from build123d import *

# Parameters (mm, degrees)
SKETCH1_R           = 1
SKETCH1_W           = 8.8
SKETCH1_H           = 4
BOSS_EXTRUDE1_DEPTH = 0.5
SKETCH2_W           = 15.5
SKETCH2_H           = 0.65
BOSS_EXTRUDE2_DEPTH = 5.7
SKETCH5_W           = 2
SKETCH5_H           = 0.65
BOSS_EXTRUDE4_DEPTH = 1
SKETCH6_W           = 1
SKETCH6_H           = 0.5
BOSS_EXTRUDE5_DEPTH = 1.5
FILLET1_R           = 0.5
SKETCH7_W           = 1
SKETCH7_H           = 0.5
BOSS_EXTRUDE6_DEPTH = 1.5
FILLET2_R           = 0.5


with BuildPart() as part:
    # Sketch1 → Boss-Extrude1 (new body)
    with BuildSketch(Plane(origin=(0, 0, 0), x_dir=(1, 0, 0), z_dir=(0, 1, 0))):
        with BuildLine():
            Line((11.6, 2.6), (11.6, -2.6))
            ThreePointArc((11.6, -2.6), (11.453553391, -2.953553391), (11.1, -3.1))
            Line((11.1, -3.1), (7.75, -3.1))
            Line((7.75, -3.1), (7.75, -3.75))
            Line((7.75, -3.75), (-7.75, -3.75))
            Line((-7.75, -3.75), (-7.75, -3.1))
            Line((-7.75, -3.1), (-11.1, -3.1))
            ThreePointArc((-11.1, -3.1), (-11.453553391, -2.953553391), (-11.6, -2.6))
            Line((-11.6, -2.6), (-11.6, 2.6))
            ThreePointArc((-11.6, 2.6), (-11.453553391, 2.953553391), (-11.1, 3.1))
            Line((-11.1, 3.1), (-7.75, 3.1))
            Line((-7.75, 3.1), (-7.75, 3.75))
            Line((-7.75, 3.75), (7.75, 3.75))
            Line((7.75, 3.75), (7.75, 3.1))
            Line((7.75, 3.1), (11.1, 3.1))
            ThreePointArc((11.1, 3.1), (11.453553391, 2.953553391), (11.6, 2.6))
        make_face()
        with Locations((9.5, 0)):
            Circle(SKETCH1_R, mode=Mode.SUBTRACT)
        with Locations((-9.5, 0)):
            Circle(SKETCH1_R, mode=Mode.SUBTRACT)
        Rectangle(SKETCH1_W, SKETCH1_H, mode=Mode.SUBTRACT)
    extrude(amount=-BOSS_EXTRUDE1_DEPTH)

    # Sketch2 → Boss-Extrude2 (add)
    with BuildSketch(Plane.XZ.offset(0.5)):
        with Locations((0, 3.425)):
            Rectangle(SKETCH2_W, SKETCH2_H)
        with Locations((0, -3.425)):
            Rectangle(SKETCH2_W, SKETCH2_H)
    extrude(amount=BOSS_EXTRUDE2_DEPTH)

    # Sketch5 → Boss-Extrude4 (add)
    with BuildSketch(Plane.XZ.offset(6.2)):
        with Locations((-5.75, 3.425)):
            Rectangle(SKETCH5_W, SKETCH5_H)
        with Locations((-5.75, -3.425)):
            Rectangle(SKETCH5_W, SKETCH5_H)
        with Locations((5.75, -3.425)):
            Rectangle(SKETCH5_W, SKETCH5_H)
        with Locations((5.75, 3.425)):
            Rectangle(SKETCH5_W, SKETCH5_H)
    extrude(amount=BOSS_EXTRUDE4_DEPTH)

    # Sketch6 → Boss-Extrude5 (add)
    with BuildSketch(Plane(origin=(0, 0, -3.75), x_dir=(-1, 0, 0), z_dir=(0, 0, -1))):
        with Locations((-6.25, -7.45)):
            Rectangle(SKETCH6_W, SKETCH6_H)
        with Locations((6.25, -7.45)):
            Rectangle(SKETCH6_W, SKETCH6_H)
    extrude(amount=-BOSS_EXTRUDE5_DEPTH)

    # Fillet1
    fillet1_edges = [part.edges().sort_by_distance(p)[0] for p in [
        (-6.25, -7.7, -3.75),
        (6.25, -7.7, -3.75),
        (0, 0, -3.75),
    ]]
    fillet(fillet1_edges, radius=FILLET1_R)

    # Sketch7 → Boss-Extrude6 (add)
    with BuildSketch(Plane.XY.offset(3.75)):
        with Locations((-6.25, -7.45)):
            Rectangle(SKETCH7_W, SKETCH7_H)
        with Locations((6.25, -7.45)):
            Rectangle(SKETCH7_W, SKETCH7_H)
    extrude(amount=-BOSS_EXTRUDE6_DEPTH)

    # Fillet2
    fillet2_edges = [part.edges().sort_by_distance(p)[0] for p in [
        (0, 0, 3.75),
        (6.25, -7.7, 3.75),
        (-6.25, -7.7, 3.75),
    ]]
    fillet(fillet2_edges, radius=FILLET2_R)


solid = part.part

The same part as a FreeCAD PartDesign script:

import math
import FreeCAD as App
import Part
import Sketcher

V = App.Vector
Q = App.Units.Quantity


def edges_at(feature, points):
    """Names of the edges that pass closest to the given points."""
    edges = feature.Shape.Edges
    near = lambda p: min(range(len(edges)), key=lambda i: edges[i].distToShape(Part.Vertex(*p))[0])
    return sorted({f"Edge{near(p) + 1}" for p in points})


def add_polygon(sketch, points):
    """Adds a closed chain of lines whose ends are joined by coincident constraints."""
    first, n = sketch.GeometryCount, len(points)
    for a, b in zip(points, points[1:] + points[:1]):
        sketch.addGeometry(Part.LineSegment(App.Vector(*a, 0), App.Vector(*b, 0)), False)
    for i in range(n):
        sketch.addConstraint(Sketcher.Constraint("Coincident", first + i, 2, first + (i + 1) % n, 1))

doc = App.newDocument("Part")
body = doc.addObject("PartDesign::Body", "Body")

# Sketch on XZ plane
sketch1 = doc.addObject("Sketcher::SketchObject", "Sketch")
body.addObject(sketch1)
sketch1.AttachmentSupport = (doc.XZ_Plane, [""])
sketch1.MapMode = "FlatFace"
sketch1.addGeometry(Part.LineSegment(V(11.6, 2.6, 0), V(11.6, -2.6, 0)), False)  # 0
sketch1.addGeometry(Part.ArcOfCircle(Part.Circle(V(11.1, -2.6, 0), V(0, 0, 1), 0.5), math.radians(-90), math.radians(0)), False)  # 1
sketch1.addGeometry(Part.LineSegment(V(11.1, -3.1, 0), V(7.75, -3.1, 0)), False)  # 2
sketch1.addGeometry(Part.LineSegment(V(7.75, -3.1, 0), V(7.75, -3.75, 0)), False)  # 3
sketch1.addGeometry(Part.LineSegment(V(7.75, -3.75, 0), V(-7.75, -3.75, 0)), False)  # 4
sketch1.addGeometry(Part.LineSegment(V(-7.75, -3.75, 0), V(-7.75, -3.1, 0)), False)  # 5
sketch1.addGeometry(Part.LineSegment(V(-7.75, -3.1, 0), V(-11.1, -3.1, 0)), False)  # 6
sketch1.addGeometry(Part.ArcOfCircle(Part.Circle(V(-11.1, -2.6, 0), V(0, 0, 1), 0.5), math.radians(180), math.radians(270)), False)  # 7
sketch1.addGeometry(Part.LineSegment(V(-11.6, -2.6, 0), V(-11.6, 2.6, 0)), False)  # 8
sketch1.addGeometry(Part.ArcOfCircle(Part.Circle(V(-11.1, 2.6, 0), V(0, 0, 1), 0.5), math.radians(90), math.radians(180)), False)  # 9
sketch1.addGeometry(Part.LineSegment(V(-11.1, 3.1, 0), V(-7.75, 3.1, 0)), False)  # 10
sketch1.addGeometry(Part.LineSegment(V(-7.75, 3.1, 0), V(-7.75, 3.75, 0)), False)  # 11
sketch1.addGeometry(Part.LineSegment(V(-7.75, 3.75, 0), V(7.75, 3.75, 0)), False)  # 12
sketch1.addGeometry(Part.LineSegment(V(7.75, 3.75, 0), V(7.75, 3.1, 0)), False)  # 13
sketch1.addGeometry(Part.LineSegment(V(7.75, 3.1, 0), V(11.1, 3.1, 0)), False)  # 14
sketch1.addGeometry(Part.ArcOfCircle(Part.Circle(V(11.1, 2.6, 0), V(0, 0, 1), 0.5), math.radians(0), math.radians(90)), False)  # 15
sketch1.addGeometry(Part.Circle(V(9.5, 0, 0), V(0, 0, 1), 1), False)  # 16
add_polygon(sketch1, [(-4.4, 2), (-4.4, -2), (4.4, -2), (4.4, 2)])  # lines 17-20
sketch1.addGeometry(Part.Circle(V(-9.5, 0, 0), V(0, 0, 1), 1), False)  # 21
sketch1.addConstraint(Sketcher.Constraint("Tangent", 0, 2, 1, 2))
sketch1.addConstraint(Sketcher.Constraint("Tangent", 1, 1, 2, 1))
sketch1.addConstraint(Sketcher.Constraint("Coincident", 2, 2, 3, 1))
sketch1.addConstraint(Sketcher.Constraint("Coincident", 3, 2, 4, 1))
sketch1.addConstraint(Sketcher.Constraint("Coincident", 4, 2, 5, 1))
sketch1.addConstraint(Sketcher.Constraint("Coincident", 5, 2, 6, 1))
sketch1.addConstraint(Sketcher.Constraint("Tangent", 6, 2, 7, 2))
sketch1.addConstraint(Sketcher.Constraint("Tangent", 7, 1, 8, 1))
sketch1.addConstraint(Sketcher.Constraint("Tangent", 8, 2, 9, 2))
sketch1.addConstraint(Sketcher.Constraint("Tangent", 9, 1, 10, 1))
sketch1.addConstraint(Sketcher.Constraint("Coincident", 10, 2, 11, 1))
sketch1.addConstraint(Sketcher.Constraint("Coincident", 11, 2, 12, 1))
sketch1.addConstraint(Sketcher.Constraint("Coincident", 12, 2, 13, 1))
sketch1.addConstraint(Sketcher.Constraint("Coincident", 13, 2, 14, 1))
sketch1.addConstraint(Sketcher.Constraint("Tangent", 14, 2, 15, 2))
sketch1.addConstraint(Sketcher.Constraint("Tangent", 15, 1, 0, 1))
sketch1.addConstraint(Sketcher.Constraint("Vertical", 0))
sketch1.addConstraint(Sketcher.Constraint("Horizontal", 2))
sketch1.addConstraint(Sketcher.Constraint("Vertical", 3))
sketch1.addConstraint(Sketcher.Constraint("Horizontal", 4))
sketch1.addConstraint(Sketcher.Constraint("Vertical", 5))
sketch1.addConstraint(Sketcher.Constraint("Horizontal", 6))
sketch1.addConstraint(Sketcher.Constraint("Vertical", 8))
sketch1.addConstraint(Sketcher.Constraint("Horizontal", 10))
sketch1.addConstraint(Sketcher.Constraint("Vertical", 11))
sketch1.addConstraint(Sketcher.Constraint("Horizontal", 12))
sketch1.addConstraint(Sketcher.Constraint("Vertical", 13))
sketch1.addConstraint(Sketcher.Constraint("Horizontal", 14))
sketch1.addConstraint(Sketcher.Constraint("Vertical", 17))
sketch1.addConstraint(Sketcher.Constraint("Horizontal", 18))
sketch1.addConstraint(Sketcher.Constraint("Vertical", 19))
sketch1.addConstraint(Sketcher.Constraint("Horizontal", 20))
sketch1.addConstraint(Sketcher.Constraint("Equal", 1, 7))
sketch1.addConstraint(Sketcher.Constraint("Equal", 7, 9))
sketch1.addConstraint(Sketcher.Constraint("Equal", 9, 15))
sketch1.addConstraint(Sketcher.Constraint("Equal", 16, 21))
sketch1.addConstraint(Sketcher.Constraint("Symmetric", 1, 3, 9, 3, -1, 1))
sketch1.addConstraint(Sketcher.Constraint("Symmetric", 16, 3, 21, 3, -1, 1))
sketch1.addConstraint(Sketcher.Constraint("Symmetric", 3, 2, 11, 2, -1, 1))
sketch1.addConstraint(Sketcher.Constraint("Symmetric", 5, 2, 13, 2, -1, 1))
sketch1.addConstraint(Sketcher.Constraint("Symmetric", 17, 2, 19, 2, -1, 1))
sketch1.addConstraint(Sketcher.Constraint("Symmetric", 2, 2, 5, 2, -2))
sketch1.addConstraint(Sketcher.Constraint("PointOnObject", 16, 3, -1))
sketch1.addConstraint(Sketcher.Constraint("Diameter", 16, Q("2 mm")))
sketch1.addConstraint(Sketcher.Constraint("Radius", 1, Q("0.5 mm")))
sketch1.addConstraint(Sketcher.Constraint("DistanceY", 17, 2, 17, 1, Q("4 mm")))
sketch1.addConstraint(Sketcher.Constraint("DistanceX", 4, 2, 4, 1, Q("15.5 mm")))
sketch1.addConstraint(Sketcher.Constraint("DistanceX", 18, 1, 18, 2, Q("8.8 mm")))
sketch1.addConstraint(Sketcher.Constraint("DistanceY", 0, 2, 0, 1, Q("5.2 mm")))
sketch1.addConstraint(Sketcher.Constraint("DistanceX", 21, 3, 16, 3, Q("19 mm")))
sketch1.addConstraint(Sketcher.Constraint("DistanceX", 2, 2, 2, 1, Q("3.35 mm")))
sketch1.addConstraint(Sketcher.Constraint("DistanceY", 3, 2, 3, 1, Q("0.65 mm")))
pad1 = doc.addObject("PartDesign::Pad", "Pad")
body.addObject(pad1)
pad1.Profile = sketch1
pad1.Length = 0.5

# Sketch on XZ plane
sketch2 = doc.addObject("Sketcher::SketchObject", "Sketch001")
body.addObject(sketch2)
sketch2.AttachmentSupport = (doc.XZ_Plane, [""])
sketch2.MapMode = "FlatFace"
sketch2.AttachmentOffset = App.Placement(V(0, 0, 0.5), App.Rotation())
add_polygon(sketch2, [(-7.8, 3.8), (-7.8, 3.1), (7.8, 3.1), (7.8, 3.8)])  # lines 0-3
add_polygon(sketch2, [(-7.8, -3.1), (-7.8, -3.8), (7.8, -3.8), (7.8, -3.1)])  # lines 4-7
sketch2.addConstraint(Sketcher.Constraint("Vertical", 0))
sketch2.addConstraint(Sketcher.Constraint("Horizontal", 1))
sketch2.addConstraint(Sketcher.Constraint("Vertical", 2))
sketch2.addConstraint(Sketcher.Constraint("Horizontal", 3))
sketch2.addConstraint(Sketcher.Constraint("Vertical", 4))
sketch2.addConstraint(Sketcher.Constraint("Horizontal", 5))
sketch2.addConstraint(Sketcher.Constraint("Vertical", 6))
sketch2.addConstraint(Sketcher.Constraint("Horizontal", 7))
sketch2.addConstraint(Sketcher.Constraint("Symmetric", 2, 2, 4, 2, -1, 1))
sketch2.addConstraint(Sketcher.Constraint("Symmetric", 0, 2, 6, 2, -1, 1))
sketch2.addConstraint(Sketcher.Constraint("Vertical", 3, 2, 4, 2))
sketch2.addConstraint(Sketcher.Constraint("DistanceX", 1, 1, 1, 2, Q("15.5 mm")))
sketch2.addConstraint(Sketcher.Constraint("DistanceY", 0, 2, 0, 1, Q("0.65 mm")))
sketch2.addConstraint(Sketcher.Constraint("DistanceY", -1, 1, 0, 2, Q("3.1 mm")))
pad2 = doc.addObject("PartDesign::Pad", "Pad001")
body.addObject(pad2)
pad2.Profile = sketch2
pad2.Length = 5.7

# Sketch on XZ plane
sketch3 = doc.addObject("Sketcher::SketchObject", "Sketch002")
body.addObject(sketch3)
sketch3.AttachmentSupport = (doc.XZ_Plane, [""])
sketch3.MapMode = "FlatFace"
sketch3.AttachmentOffset = App.Placement(V(0, 0, 6.2), App.Rotation())
add_polygon(sketch3, [(-6.8, 3.8), (-6.8, 3.1), (-4.8, 3.1), (-4.8, 3.8)])  # lines 0-3
add_polygon(sketch3, [(-6.8, -3.1), (-6.8, -3.8), (-4.8, -3.8), (-4.8, -3.1)])  # lines 4-7
add_polygon(sketch3, [(4.8, -3.1), (4.8, -3.8), (6.8, -3.8), (6.8, -3.1)])  # lines 8-11
add_polygon(sketch3, [(4.8, 3.8), (4.8, 3.1), (6.8, 3.1), (6.8, 3.8)])  # lines 12-15
sketch3.addConstraint(Sketcher.Constraint("Vertical", 0))
sketch3.addConstraint(Sketcher.Constraint("Horizontal", 1))
sketch3.addConstraint(Sketcher.Constraint("Vertical", 2))
sketch3.addConstraint(Sketcher.Constraint("Horizontal", 3))
sketch3.addConstraint(Sketcher.Constraint("Vertical", 4))
sketch3.addConstraint(Sketcher.Constraint("Horizontal", 5))
sketch3.addConstraint(Sketcher.Constraint("Vertical", 6))
sketch3.addConstraint(Sketcher.Constraint("Horizontal", 7))
sketch3.addConstraint(Sketcher.Constraint("Vertical", 8))
sketch3.addConstraint(Sketcher.Constraint("Horizontal", 9))
sketch3.addConstraint(Sketcher.Constraint("Vertical", 10))
sketch3.addConstraint(Sketcher.Constraint("Horizontal", 11))
sketch3.addConstraint(Sketcher.Constraint("Vertical", 12))
sketch3.addConstraint(Sketcher.Constraint("Horizontal", 13))
sketch3.addConstraint(Sketcher.Constraint("Vertical", 14))
sketch3.addConstraint(Sketcher.Constraint("Horizontal", 15))
sketch3.addConstraint(Sketcher.Constraint("Symmetric", 2, 2, 8, 2, -1, 1))
sketch3.addConstraint(Sketcher.Constraint("Symmetric", 0, 2, 10, 2, -1, 1))
sketch3.addConstraint(Sketcher.Constraint("Symmetric", 6, 2, 12, 2, -1, 1))
sketch3.addConstraint(Sketcher.Constraint("Symmetric", 4, 2, 14, 2, -1, 1))
sketch3.addConstraint(Sketcher.Constraint("Symmetric", 5, 2, 8, 2, -2))
sketch3.addConstraint(Sketcher.Constraint("Symmetric", 7, 2, 10, 2, -2))
sketch3.addConstraint(Sketcher.Constraint("DistanceX", 1, 1, 1, 2, Q("2 mm")))
sketch3.addConstraint(Sketcher.Constraint("DistanceY", 0, 2, 0, 1, Q("0.65 mm")))
sketch3.addConstraint(Sketcher.Constraint("DistanceY", -1, 1, 0, 2, Q("3.1 mm")))
sketch3.addConstraint(Sketcher.Constraint("DistanceX", 5, 2, 8, 2, Q("9.5 mm")))
pad3 = doc.addObject("PartDesign::Pad", "Pad002")
body.addObject(pad3)
pad3.Profile = sketch3
pad3.Length = 1

# Sketch on XY plane
sketch4 = doc.addObject("Sketcher::SketchObject", "Sketch003")
body.addObject(sketch4)
sketch4.AttachmentSupport = (doc.XY_Plane, [""])
sketch4.MapMode = "FlatFace"
sketch4.AttachmentOffset = App.Placement(V(0, 0, -3.75), App.Rotation())
add_polygon(sketch4, [(6.8, -7.2), (6.8, -7.7), (5.8, -7.7), (5.8, -7.2)])  # lines 0-3
add_polygon(sketch4, [(-5.8, -7.2), (-5.8, -7.7), (-6.8, -7.7), (-6.8, -7.2)])  # lines 4-7
sketch4.addConstraint(Sketcher.Constraint("Vertical", 0))
sketch4.addConstraint(Sketcher.Constraint("Horizontal", 1))
sketch4.addConstraint(Sketcher.Constraint("Vertical", 2))
sketch4.addConstraint(Sketcher.Constraint("Horizontal", 3))
sketch4.addConstraint(Sketcher.Constraint("Vertical", 4))
sketch4.addConstraint(Sketcher.Constraint("Horizontal", 5))
sketch4.addConstraint(Sketcher.Constraint("Vertical", 6))
sketch4.addConstraint(Sketcher.Constraint("Horizontal", 7))
sketch4.addConstraint(Sketcher.Constraint("Symmetric", 1, 2, 4, 2, -2))
sketch4.addConstraint(Sketcher.Constraint("Symmetric", 3, 2, 6, 2, -2))
sketch4.addConstraint(Sketcher.Constraint("DistanceX", 1, 2, 1, 1, Q("1 mm")))
sketch4.addConstraint(Sketcher.Constraint("DistanceY", 0, 2, 0, 1, Q("0.5 mm")))
sketch4.addConstraint(Sketcher.Constraint("DistanceY", 0, 2, -1, 1, Q("7.7 mm")))
sketch4.addConstraint(Sketcher.Constraint("DistanceX", 4, 2, 1, 2, Q("11.5 mm")))
pad4 = doc.addObject("PartDesign::Pad", "Pad003")
body.addObject(pad4)
pad4.Profile = sketch4
pad4.Length = 1.5
doc.recompute()

fillet = doc.addObject("PartDesign::Fillet", "Fillet")
body.addObject(fillet)
fillet.Base = (pad4, edges_at(pad4, [(-6.25, -7.7, -3.75), (6.25, -7.7, -3.75), (0, 0, -3.75)]))
fillet.Radius = 0.5

# Sketch on XY plane
sketch5 = doc.addObject("Sketcher::SketchObject", "Sketch004")
body.addObject(sketch5)
sketch5.AttachmentSupport = (doc.XY_Plane, [""])
sketch5.MapMode = "FlatFace"
sketch5.AttachmentOffset = App.Placement(V(0, 0, 3.75), App.Rotation())
add_polygon(sketch5, [(-6.8, -7.2), (-6.8, -7.7), (-5.8, -7.7), (-5.8, -7.2)])  # lines 0-3
add_polygon(sketch5, [(5.8, -7.2), (5.8, -7.7), (6.8, -7.7), (6.8, -7.2)])  # lines 4-7
sketch5.addConstraint(Sketcher.Constraint("Vertical", 0))
sketch5.addConstraint(Sketcher.Constraint("Horizontal", 1))
sketch5.addConstraint(Sketcher.Constraint("Vertical", 2))
sketch5.addConstraint(Sketcher.Constraint("Horizontal", 3))
sketch5.addConstraint(Sketcher.Constraint("Vertical", 4))
sketch5.addConstraint(Sketcher.Constraint("Horizontal", 5))
sketch5.addConstraint(Sketcher.Constraint("Vertical", 6))
sketch5.addConstraint(Sketcher.Constraint("Horizontal", 7))
sketch5.addConstraint(Sketcher.Constraint("Symmetric", 1, 2, 4, 2, -2))
sketch5.addConstraint(Sketcher.Constraint("Symmetric", 3, 2, 6, 2, -2))
sketch5.addConstraint(Sketcher.Constraint("DistanceX", 1, 1, 1, 2, Q("1 mm")))
sketch5.addConstraint(Sketcher.Constraint("DistanceY", 0, 2, 0, 1, Q("0.5 mm")))
sketch5.addConstraint(Sketcher.Constraint("DistanceY", 0, 2, -1, 1, Q("7.7 mm")))
sketch5.addConstraint(Sketcher.Constraint("DistanceX", 1, 2, 4, 2, Q("11.5 mm")))
pad5 = doc.addObject("PartDesign::Pad", "Pad004")
body.addObject(pad5)
pad5.Profile = sketch5
pad5.Length = 1.5
pad5.Reversed = True
doc.recompute()

fillet2 = doc.addObject("PartDesign::Fillet", "Fillet001")
body.addObject(fillet2)
fillet2.Base = (pad5, edges_at(pad5, [(0, 0, 3.75), (6.25, -7.7, 3.75), (-6.25, -7.7, 3.75)]))
fillet2.Radius = 0.5

doc.recompute()
